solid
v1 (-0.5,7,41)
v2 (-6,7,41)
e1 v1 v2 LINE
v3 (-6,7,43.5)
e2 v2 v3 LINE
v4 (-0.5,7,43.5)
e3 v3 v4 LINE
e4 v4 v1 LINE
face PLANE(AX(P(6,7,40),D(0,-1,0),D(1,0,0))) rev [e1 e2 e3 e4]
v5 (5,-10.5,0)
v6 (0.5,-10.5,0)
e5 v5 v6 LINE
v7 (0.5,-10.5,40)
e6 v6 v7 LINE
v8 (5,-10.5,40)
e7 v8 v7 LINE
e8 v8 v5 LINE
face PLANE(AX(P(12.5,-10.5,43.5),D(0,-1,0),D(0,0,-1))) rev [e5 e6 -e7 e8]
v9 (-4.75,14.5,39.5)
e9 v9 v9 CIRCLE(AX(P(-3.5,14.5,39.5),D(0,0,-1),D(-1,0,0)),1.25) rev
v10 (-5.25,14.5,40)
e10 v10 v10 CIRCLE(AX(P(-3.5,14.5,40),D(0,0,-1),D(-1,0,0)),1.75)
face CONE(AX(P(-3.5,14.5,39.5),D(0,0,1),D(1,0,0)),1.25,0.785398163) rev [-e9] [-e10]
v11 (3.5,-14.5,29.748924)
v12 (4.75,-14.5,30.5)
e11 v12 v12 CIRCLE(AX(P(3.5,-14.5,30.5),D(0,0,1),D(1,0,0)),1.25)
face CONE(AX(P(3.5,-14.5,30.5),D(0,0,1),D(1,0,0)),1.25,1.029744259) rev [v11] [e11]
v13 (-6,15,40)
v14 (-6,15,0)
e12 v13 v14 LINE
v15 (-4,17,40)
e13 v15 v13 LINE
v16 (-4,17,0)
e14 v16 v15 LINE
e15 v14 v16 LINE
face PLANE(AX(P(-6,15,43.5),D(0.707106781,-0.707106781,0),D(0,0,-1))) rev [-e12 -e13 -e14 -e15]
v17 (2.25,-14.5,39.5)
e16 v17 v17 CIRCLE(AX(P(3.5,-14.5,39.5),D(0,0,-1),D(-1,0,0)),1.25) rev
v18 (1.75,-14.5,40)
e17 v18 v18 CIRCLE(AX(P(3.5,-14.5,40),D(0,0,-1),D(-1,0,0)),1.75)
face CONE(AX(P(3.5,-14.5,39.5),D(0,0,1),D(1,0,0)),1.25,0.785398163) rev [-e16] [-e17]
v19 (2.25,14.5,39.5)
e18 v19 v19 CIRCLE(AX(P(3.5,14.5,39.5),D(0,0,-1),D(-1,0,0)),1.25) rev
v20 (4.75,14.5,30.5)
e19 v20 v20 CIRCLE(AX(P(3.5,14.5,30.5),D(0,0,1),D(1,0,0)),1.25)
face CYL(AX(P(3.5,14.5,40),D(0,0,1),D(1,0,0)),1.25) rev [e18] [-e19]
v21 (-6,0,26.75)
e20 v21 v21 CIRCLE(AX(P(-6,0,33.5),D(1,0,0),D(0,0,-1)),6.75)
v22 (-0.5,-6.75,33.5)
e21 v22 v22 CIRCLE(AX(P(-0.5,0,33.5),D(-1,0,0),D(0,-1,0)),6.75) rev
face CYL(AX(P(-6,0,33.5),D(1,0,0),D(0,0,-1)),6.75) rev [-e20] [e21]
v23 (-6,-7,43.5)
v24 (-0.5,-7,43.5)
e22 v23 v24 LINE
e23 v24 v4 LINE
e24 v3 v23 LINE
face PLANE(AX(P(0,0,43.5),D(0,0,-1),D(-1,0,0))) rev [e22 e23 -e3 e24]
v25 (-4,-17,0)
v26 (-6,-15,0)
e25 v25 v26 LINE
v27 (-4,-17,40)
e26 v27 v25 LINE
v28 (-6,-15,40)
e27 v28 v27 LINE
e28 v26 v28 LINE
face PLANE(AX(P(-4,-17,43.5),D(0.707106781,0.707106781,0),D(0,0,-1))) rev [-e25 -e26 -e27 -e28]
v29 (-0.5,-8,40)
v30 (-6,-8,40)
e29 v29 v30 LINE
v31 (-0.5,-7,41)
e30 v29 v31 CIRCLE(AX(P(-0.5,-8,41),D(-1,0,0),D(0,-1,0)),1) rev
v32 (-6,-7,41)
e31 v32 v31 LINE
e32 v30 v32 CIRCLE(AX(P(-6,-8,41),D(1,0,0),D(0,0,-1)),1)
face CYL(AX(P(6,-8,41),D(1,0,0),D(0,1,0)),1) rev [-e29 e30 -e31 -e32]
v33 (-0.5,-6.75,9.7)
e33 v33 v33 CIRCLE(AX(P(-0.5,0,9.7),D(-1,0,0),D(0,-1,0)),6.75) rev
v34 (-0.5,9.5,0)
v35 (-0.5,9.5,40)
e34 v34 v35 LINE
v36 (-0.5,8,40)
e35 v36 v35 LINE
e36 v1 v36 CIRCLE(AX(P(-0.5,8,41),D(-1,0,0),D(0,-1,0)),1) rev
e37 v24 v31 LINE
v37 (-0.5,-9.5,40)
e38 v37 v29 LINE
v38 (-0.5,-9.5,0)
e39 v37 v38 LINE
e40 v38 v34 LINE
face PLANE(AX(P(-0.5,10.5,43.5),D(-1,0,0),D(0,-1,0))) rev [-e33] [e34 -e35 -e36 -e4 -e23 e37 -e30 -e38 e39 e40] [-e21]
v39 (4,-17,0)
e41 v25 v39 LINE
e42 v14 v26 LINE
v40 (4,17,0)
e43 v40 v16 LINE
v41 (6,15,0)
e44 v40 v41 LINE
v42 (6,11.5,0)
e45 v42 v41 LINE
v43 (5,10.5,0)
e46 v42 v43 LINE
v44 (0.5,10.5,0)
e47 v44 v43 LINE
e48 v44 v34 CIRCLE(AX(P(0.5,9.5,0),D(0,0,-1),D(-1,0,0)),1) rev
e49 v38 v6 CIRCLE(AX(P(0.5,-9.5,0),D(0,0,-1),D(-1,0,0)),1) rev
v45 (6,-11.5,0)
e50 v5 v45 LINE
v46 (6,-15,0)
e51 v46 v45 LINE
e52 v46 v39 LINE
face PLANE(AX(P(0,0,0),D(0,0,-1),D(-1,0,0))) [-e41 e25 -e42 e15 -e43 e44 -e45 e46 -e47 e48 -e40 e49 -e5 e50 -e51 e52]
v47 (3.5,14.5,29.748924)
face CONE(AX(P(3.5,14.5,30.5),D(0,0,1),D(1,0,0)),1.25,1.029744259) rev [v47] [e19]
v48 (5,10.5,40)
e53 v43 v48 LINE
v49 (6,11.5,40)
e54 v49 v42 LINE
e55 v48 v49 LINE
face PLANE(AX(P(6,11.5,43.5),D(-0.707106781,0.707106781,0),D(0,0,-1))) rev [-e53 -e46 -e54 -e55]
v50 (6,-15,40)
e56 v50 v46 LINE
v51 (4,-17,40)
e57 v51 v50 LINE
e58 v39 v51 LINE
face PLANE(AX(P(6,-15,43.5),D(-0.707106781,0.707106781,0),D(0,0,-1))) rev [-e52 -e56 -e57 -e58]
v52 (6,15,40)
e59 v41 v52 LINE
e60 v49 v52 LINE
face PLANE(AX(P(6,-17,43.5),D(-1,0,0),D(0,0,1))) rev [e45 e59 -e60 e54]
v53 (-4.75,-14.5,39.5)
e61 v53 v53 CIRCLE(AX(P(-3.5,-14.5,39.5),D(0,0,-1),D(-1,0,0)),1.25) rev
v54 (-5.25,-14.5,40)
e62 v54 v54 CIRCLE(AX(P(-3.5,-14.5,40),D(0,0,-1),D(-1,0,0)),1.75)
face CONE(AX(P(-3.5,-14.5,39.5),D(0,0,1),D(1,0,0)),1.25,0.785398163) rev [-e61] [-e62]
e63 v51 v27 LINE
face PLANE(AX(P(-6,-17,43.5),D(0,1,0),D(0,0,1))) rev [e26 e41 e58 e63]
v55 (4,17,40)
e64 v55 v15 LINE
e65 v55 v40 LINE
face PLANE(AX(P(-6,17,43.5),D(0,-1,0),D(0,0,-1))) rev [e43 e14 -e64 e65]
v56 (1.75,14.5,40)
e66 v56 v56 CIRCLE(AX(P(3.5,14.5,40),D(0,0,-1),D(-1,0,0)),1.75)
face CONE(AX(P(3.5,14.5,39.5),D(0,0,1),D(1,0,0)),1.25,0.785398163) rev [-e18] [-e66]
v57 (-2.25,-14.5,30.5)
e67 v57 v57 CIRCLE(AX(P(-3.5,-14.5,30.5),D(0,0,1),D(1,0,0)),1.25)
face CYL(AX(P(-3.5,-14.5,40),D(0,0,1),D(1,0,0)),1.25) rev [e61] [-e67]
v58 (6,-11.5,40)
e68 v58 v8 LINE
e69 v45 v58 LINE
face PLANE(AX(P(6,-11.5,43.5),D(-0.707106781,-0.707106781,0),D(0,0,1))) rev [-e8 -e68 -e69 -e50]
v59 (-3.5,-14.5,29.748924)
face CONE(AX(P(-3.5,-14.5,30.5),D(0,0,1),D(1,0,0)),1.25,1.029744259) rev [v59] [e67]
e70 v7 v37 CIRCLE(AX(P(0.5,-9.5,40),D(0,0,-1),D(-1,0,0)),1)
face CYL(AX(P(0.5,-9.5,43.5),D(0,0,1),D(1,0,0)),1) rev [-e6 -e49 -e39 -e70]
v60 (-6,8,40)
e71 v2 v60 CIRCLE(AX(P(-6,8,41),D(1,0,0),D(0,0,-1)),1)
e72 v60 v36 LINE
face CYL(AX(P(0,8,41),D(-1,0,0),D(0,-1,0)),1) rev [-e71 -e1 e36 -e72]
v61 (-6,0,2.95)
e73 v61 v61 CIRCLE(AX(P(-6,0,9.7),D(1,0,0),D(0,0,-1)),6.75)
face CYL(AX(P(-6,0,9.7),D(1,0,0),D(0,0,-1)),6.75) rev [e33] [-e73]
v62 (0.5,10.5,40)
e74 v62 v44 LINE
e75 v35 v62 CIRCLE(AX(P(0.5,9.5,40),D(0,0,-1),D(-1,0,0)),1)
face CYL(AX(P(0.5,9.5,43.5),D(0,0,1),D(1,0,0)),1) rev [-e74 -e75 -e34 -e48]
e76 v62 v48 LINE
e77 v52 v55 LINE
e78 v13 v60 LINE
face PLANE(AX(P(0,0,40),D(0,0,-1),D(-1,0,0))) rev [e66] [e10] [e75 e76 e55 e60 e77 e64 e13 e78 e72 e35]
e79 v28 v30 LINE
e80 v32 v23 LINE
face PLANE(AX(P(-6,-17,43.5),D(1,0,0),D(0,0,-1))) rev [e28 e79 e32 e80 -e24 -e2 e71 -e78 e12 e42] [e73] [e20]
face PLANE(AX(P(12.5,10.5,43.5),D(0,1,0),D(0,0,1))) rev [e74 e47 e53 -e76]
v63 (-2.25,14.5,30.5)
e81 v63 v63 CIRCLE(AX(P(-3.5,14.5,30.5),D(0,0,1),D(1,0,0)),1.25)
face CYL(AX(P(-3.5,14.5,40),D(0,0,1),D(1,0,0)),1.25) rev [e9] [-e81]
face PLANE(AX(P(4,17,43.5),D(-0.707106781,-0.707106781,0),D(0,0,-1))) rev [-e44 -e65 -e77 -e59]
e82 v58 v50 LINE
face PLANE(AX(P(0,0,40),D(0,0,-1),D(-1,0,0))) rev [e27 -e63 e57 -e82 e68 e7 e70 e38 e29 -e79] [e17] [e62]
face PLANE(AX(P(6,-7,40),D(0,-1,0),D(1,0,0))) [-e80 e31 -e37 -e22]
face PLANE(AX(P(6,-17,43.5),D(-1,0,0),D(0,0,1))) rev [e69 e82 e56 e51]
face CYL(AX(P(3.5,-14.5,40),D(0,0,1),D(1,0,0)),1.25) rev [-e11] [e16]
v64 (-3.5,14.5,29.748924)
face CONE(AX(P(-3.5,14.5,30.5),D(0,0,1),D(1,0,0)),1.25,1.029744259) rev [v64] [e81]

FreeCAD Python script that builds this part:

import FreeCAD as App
import Part
import Sketcher
Q = App.Units.Quantity


def edges_at(feature, points):
    """Names of the edges that pass closest to the given points."""
    edges = feature.Shape.Edges
    near = lambda p: min(range(len(edges)), key=lambda i: edges[i].distToShape(Part.Vertex(*p))[0])
    return sorted({f"Edge{near(p) + 1}" for p in points})

doc = App.newDocument("Part")
body = doc.addObject("PartDesign::Body", "Body")

# Sketch on XY plane
sketch1 = body.newObject("Sketcher::SketchObject", "Sketch")
sketch1.AttachmentSupport = (doc.getObject("XY_Plane"), [""])
sketch1.MapMode = "FlatFace"
sketch1.addGeometry(Part.LineSegment(App.Vector(-6, 17, 0), App.Vector(-6, -17, 0)), False)
sketch1.addGeometry(Part.LineSegment(App.Vector(-6, -17, 0), App.Vector(6, -17, 0)), False)
sketch1.addGeometry(Part.LineSegment(App.Vector(6, -17, 0), App.Vector(6, 17, 0)), False)
sketch1.addGeometry(Part.LineSegment(App.Vector(6, 17, 0), App.Vector(-6, 17, 0)), False)
sketch1.addConstraint(Sketcher.Constraint("Coincident", 0, 2, 1, 1))
sketch1.addConstraint(Sketcher.Constraint("Coincident", 1, 2, 2, 1))
sketch1.addConstraint(Sketcher.Constraint("Coincident", 2, 2, 3, 1))
sketch1.addConstraint(Sketcher.Constraint("Coincident", 3, 2, 0, 1))
sketch1.addConstraint(Sketcher.Constraint("Vertical", 0))
sketch1.addConstraint(Sketcher.Constraint("Horizontal", 1))
sketch1.addConstraint(Sketcher.Constraint("Vertical", 2))
sketch1.addConstraint(Sketcher.Constraint("Horizontal", 3))
sketch1.addConstraint(Sketcher.Constraint("Symmetric", 0, 2, 2, 2, -1, 1))
sketch1.addConstraint(Sketcher.Constraint("DistanceX", 1, 1, 1, 2, 12.0))
sketch1.addConstraint(Sketcher.Constraint("DistanceY", 0, 2, 0, 1, 34.0))
pad1 = body.newObject("PartDesign::Pad", "Pad")
pad1.Profile = sketch1
pad1.Length = 43.5

# Sketch on YZ plane
sketch2 = body.newObject("Sketcher::SketchObject", "Sketch001")
sketch2.AttachmentSupport = (doc.getObject("YZ_Plane"), [""])
sketch2.MapMode = "FlatFace"
sketch2.AttachmentOffset = App.Placement(App.Vector(0, 0, 6), App.Rotation())
sketch2.addGeometry(Part.Circle(App.Vector(0, 33.5, 0), App.Vector(0, 0, 1), 6.75), False)
sketch2.addGeometry(Part.Circle(App.Vector(0, 9.7, 0), App.Vector(0, 0, 1), 6.75), False)
sketch2.addConstraint(Sketcher.Constraint("Equal", 0, 1))
sketch2.addConstraint(Sketcher.Constraint("PointOnObject", 0, 3, -2))
sketch2.addConstraint(Sketcher.Constraint("PointOnObject", 1, 3, -2))
sketch2.addConstraint(Sketcher.Constraint("Diameter", 0, 13.5))
sketch2.addConstraint(Sketcher.Constraint("DistanceY", -1, 1, 0, 3, 33.5))
sketch2.addConstraint(Sketcher.Constraint("DistanceY", -1, 1, 1, 3, 9.7))
pocket1 = body.newObject("PartDesign::Pocket", "Pocket")
pocket1.Profile = sketch2
pocket1.Type = "ThroughAll"

# Sketch on XY plane
sketch3 = body.newObject("Sketcher::SketchObject", "Sketch002")
sketch3.AttachmentSupport = (doc.getObject("XY_Plane"), [""])
sketch3.MapMode = "FlatFace"
sketch3.AttachmentOffset = App.Placement(App.Vector(0, 0, 43.5), App.Rotation())
sketch3.addGeometry(Part.LineSegment(App.Vector(-6, 17, 0), App.Vector(-6, 7, 0)), False)
sketch3.addGeometry(Part.LineSegment(App.Vector(-6, 7, 0), App.Vector(6, 7, 0)), False)
sketch3.addGeometry(Part.LineSegment(App.Vector(6, 7, 0), App.Vector(6, 17, 0)), False)
sketch3.addGeometry(Part.LineSegment(App.Vector(6, 17, 0), App.Vector(-6, 17, 0)), False)
sketch3.addConstraint(Sketcher.Constraint("Coincident", 0, 2, 1, 1))
sketch3.addConstraint(Sketcher.Constraint("Coincident", 1, 2, 2, 1))
sketch3.addConstraint(Sketcher.Constraint("Coincident", 2, 2, 3, 1))
sketch3.addConstraint(Sketcher.Constraint("Coincident", 3, 2, 0, 1))
sketch3.addConstraint(Sketcher.Constraint("Vertical", 0))
sketch3.addConstraint(Sketcher.Constraint("Horizontal", 1))
sketch3.addConstraint(Sketcher.Constraint("Vertical", 2))
sketch3.addConstraint(Sketcher.Constraint("Horizontal", 3))
sketch3.addConstraint(Sketcher.Constraint("DistanceX", 1, 1, 1, 2, 12.0))
sketch3.addConstraint(Sketcher.Constraint("DistanceY", 0, 2, 0, 1, 10.0))
sketch3.addConstraint(Sketcher.Constraint("DistanceX", 0, 2, -1, 1, 6.0))
sketch3.addConstraint(Sketcher.Constraint("DistanceY", -1, 1, 0, 2, 7.0))
pocket2 = body.newObject("PartDesign::Pocket", "Pocket001")
pocket2.Profile = sketch3
pocket2.Length = 3.5
doc.recompute()

mirrored = body.newObject("PartDesign::Mirrored", "Mirrored")
mirrored.Originals = [pocket2]
mirrored.MirrorPlane = (doc.getObject("XZ_Plane"), [""])
body.Tip = mirrored
doc.recompute()

fillet = body.newObject("PartDesign::Fillet", "Fillet")
fillet.Base = (mirrored, edges_at(mirrored, [(0, 7, 40), (0, -7, 40)]))
fillet.Radius = 1

# Sketch on YZ plane
sketch4 = body.newObject("Sketcher::SketchObject", "Sketch003")
sketch4.AttachmentSupport = (doc.getObject("YZ_Plane"), [""])
sketch4.MapMode = "FlatFace"
sketch4.AttachmentOffset = App.Placement(App.Vector(0, 0, 3.5), App.Rotation())
sketch4.addGeometry(Part.LineSegment(App.Vector(14.5, 29.748924, 0), App.Vector(14.5, 40, 0)), False)
sketch4.addGeometry(Part.LineSegment(App.Vector(14.5, 40, 0), App.Vector(13.25, 40, 0)), False)
sketch4.addGeometry(Part.LineSegment(App.Vector(13.25, 40, 0), App.Vector(13.25, 30.5, 0)), False)
sketch4.addGeometry(Part.LineSegment(App.Vector(13.25, 30.5, 0), App.Vector(14.5, 29.748924, 0)), False)
sketch4.addGeometry(Part.LineSegment(App.Vector(14.5, 40, 0), App.Vector(14.5, 29.748924, 0)), True)  # axis
sketch4.addConstraint(Sketcher.Constraint("Coincident", 0, 2, 1, 1))
sketch4.addConstraint(Sketcher.Constraint("Coincident", 1, 2, 2, 1))
sketch4.addConstraint(Sketcher.Constraint("Coincident", 2, 2, 3, 1))
sketch4.addConstraint(Sketcher.Constraint("Coincident", 3, 2, 0, 1))
sketch4.addConstraint(Sketcher.Constraint("Vertical", 0))
sketch4.addConstraint(Sketcher.Constraint("Horizontal", 1))
sketch4.addConstraint(Sketcher.Constraint("Vertical", 2))
sketch4.addConstraint(Sketcher.Constraint("Vertical", 4))
sketch4.addConstraint(Sketcher.Constraint("Coincident", 4, 1, 0, 2))
sketch4.addConstraint(Sketcher.Constraint("Equal", 0, 4))
sketch4.addConstraint(Sketcher.Constraint("Angle", 3, Q("-31 deg")))
sketch4.addConstraint(Sketcher.Constraint("DistanceY", 2, 2, 2, 1, 9.5))
sketch4.addConstraint(Sketcher.Constraint("DistanceY", -1, 1, 0, 2, 40.0))
sketch4.addConstraint(Sketcher.Constraint("DistanceX", 1, 2, 1, 1, 1.25))
sketch4.addConstraint(Sketcher.Constraint("DistanceX", -1, 1, 0, 2, 14.5))
groove = body.newObject("PartDesign::Groove", "Groove")
groove.Profile = sketch4
groove.ReferenceAxis = (sketch4, ["Axis0"])
groove.Angle = 360
doc.recompute()

linearpattern = body.newObject("PartDesign::LinearPattern", "LinearPattern")
linearpattern.Originals = [groove]
linearpattern.Direction = (doc.getObject("X_Axis"), [""])
linearpattern.Mode = "offset"
linearpattern.Offset = 7
linearpattern.Occurrences = 2
linearpattern.Reversed = True
body.Tip = linearpattern
doc.recompute()

mirrored2 = body.newObject("PartDesign::Mirrored", "Mirrored001")
mirrored2.Originals = [groove]
mirrored2.MirrorPlane = (doc.getObject("XZ_Plane"), [""])
body.Tip = mirrored2

# Sketch on YZ plane
sketch5 = body.newObject("Sketcher::SketchObject", "Sketch004")
sketch5.AttachmentSupport = (doc.getObject("YZ_Plane"), [""])
sketch5.MapMode = "FlatFace"
sketch5.AttachmentOffset = App.Placement(App.Vector(0, 0, -3.5), App.Rotation())
sketch5.addGeometry(Part.LineSegment(App.Vector(-14.5, 40, 0), App.Vector(-14.5, 29.748924, 0)), False)
sketch5.addGeometry(Part.LineSegment(App.Vector(-14.5, 29.748924, 0), App.Vector(-13.25, 30.5, 0)), False)
sketch5.addGeometry(Part.LineSegment(App.Vector(-13.25, 30.5, 0), App.Vector(-13.25, 40, 0)), False)
sketch5.addGeometry(Part.LineSegment(App.Vector(-13.25, 40, 0), App.Vector(-14.5, 40, 0)), False)
sketch5.addGeometry(Part.LineSegment(App.Vector(-14.5, 29.748924, 0), App.Vector(-14.5, 40, 0)), True)  # axis
sketch5.addConstraint(Sketcher.Constraint("Coincident", 0, 2, 1, 1))
sketch5.addConstraint(Sketcher.Constraint("Coincident", 1, 2, 2, 1))
sketch5.addConstraint(Sketcher.Constraint("Coincident", 2, 2, 3, 1))
sketch5.addConstraint(Sketcher.Constraint("Coincident", 3, 2, 0, 1))
sketch5.addConstraint(Sketcher.Constraint("Vertical", 0))
sketch5.addConstraint(Sketcher.Constraint("Vertical", 2))
sketch5.addConstraint(Sketcher.Constraint("Horizontal", 3))
sketch5.addConstraint(Sketcher.Constraint("Vertical", 4))
sketch5.addConstraint(Sketcher.Constraint("Coincident", 4, 1, 0, 2))
sketch5.addConstraint(Sketcher.Constraint("Horizontal", 2, 2, 4, 2))
sketch5.addConstraint(Sketcher.Constraint("Angle", 1, Q("31 deg")))
sketch5.addConstraint(Sketcher.Constraint("DistanceY", 2, 1, 2, 2, 9.5))
sketch5.addConstraint(Sketcher.Constraint("DistanceY", -1, 1, 2, 2, 40.0))
sketch5.addConstraint(Sketcher.Constraint("DistanceX", 3, 2, 3, 1, 1.25))
sketch5.addConstraint(Sketcher.Constraint("DistanceX", 0, 2, -1, 1, 14.5))
groove2 = body.newObject("PartDesign::Groove", "Groove001")
groove2.Profile = sketch5
groove2.ReferenceAxis = (sketch5, ["Axis0"])
groove2.Angle = 360
doc.recompute()

chamfer = body.newObject("PartDesign::Chamfer", "Chamfer")
chamfer.Base = (groove2, edges_at(groove2, [
    (-3.5, 15.75, 40),
    (3.5, 15.75, 40),
    (-3.5, -15.75, 40),
    (3.5, -15.75, 40),
]))
chamfer.Size = 0.5

# Sketch on XY plane
sketch6 = body.newObject("Sketcher::SketchObject", "Sketch005")
sketch6.AttachmentSupport = (doc.getObject("XY_Plane"), [""])
sketch6.MapMode = "FlatFace"
sketch6.addGeometry(Part.LineSegment(App.Vector(12.5, 10.5, 0), App.Vector(12.5, -10.5, 0)), False)
sketch6.addGeometry(Part.LineSegment(App.Vector(12.5, -10.5, 0), App.Vector(-0.5, -10.5, 0)), False)
sketch6.addGeometry(Part.LineSegment(App.Vector(-0.5, -10.5, 0), App.Vector(-0.5, 10.5, 0)), False)
sketch6.addGeometry(Part.LineSegment(App.Vector(-0.5, 10.5, 0), App.Vector(12.5, 10.5, 0)), False)
sketch6.addConstraint(Sketcher.Constraint("Coincident", 0, 2, 1, 1))
sketch6.addConstraint(Sketcher.Constraint("Coincident", 1, 2, 2, 1))
sketch6.addConstraint(Sketcher.Constraint("Coincident", 2, 2, 3, 1))
sketch6.addConstraint(Sketcher.Constraint("Coincident", 3, 2, 0, 1))
sketch6.addConstraint(Sketcher.Constraint("Vertical", 0))
sketch6.addConstraint(Sketcher.Constraint("Horizontal", 1))
sketch6.addConstraint(Sketcher.Constraint("Vertical", 2))
sketch6.addConstraint(Sketcher.Constraint("Horizontal", 3))
sketch6.addConstraint(Sketcher.Constraint("DistanceX", 1, 2, 1, 1, 13.0))
sketch6.addConstraint(Sketcher.Constraint("DistanceY", 0, 2, 0, 1, 21.0))
sketch6.addConstraint(Sketcher.Constraint("DistanceX", -1, 1, 0, 2, 12.5))
sketch6.addConstraint(Sketcher.Constraint("DistanceY", 0, 2, -1, 1, 10.5))
pocket3 = body.newObject("PartDesign::Pocket", "Pocket002")
pocket3.Profile = sketch6
pocket3.Type = "ThroughAll"
pocket3.Reversed = True
doc.recompute()

chamfer2 = body.newObject("PartDesign::Chamfer", "Chamfer001")
chamfer2.Base = (pocket3, edges_at(pocket3, [
    (-6, 17, 20),
    (6, 17, 20),
    (6, -17, 20),
    (-6, -17, 20),
]))
chamfer2.Size = 2
doc.recompute()

chamfer3 = body.newObject("PartDesign::Chamfer", "Chamfer002")
chamfer3.Base = (chamfer2, edges_at(chamfer2, [(6, 10.5, 20), (6, -10.5, 20)]))
chamfer3.Size = 1
doc.recompute()

fillet2 = body.newObject("PartDesign::Fillet", "Fillet001")
fillet2.Base = (chamfer3, edges_at(chamfer3, [(-0.5, -10.5, 20), (-0.5, 10.5, 20)]))
fillet2.Radius = 1

doc.recompute()
